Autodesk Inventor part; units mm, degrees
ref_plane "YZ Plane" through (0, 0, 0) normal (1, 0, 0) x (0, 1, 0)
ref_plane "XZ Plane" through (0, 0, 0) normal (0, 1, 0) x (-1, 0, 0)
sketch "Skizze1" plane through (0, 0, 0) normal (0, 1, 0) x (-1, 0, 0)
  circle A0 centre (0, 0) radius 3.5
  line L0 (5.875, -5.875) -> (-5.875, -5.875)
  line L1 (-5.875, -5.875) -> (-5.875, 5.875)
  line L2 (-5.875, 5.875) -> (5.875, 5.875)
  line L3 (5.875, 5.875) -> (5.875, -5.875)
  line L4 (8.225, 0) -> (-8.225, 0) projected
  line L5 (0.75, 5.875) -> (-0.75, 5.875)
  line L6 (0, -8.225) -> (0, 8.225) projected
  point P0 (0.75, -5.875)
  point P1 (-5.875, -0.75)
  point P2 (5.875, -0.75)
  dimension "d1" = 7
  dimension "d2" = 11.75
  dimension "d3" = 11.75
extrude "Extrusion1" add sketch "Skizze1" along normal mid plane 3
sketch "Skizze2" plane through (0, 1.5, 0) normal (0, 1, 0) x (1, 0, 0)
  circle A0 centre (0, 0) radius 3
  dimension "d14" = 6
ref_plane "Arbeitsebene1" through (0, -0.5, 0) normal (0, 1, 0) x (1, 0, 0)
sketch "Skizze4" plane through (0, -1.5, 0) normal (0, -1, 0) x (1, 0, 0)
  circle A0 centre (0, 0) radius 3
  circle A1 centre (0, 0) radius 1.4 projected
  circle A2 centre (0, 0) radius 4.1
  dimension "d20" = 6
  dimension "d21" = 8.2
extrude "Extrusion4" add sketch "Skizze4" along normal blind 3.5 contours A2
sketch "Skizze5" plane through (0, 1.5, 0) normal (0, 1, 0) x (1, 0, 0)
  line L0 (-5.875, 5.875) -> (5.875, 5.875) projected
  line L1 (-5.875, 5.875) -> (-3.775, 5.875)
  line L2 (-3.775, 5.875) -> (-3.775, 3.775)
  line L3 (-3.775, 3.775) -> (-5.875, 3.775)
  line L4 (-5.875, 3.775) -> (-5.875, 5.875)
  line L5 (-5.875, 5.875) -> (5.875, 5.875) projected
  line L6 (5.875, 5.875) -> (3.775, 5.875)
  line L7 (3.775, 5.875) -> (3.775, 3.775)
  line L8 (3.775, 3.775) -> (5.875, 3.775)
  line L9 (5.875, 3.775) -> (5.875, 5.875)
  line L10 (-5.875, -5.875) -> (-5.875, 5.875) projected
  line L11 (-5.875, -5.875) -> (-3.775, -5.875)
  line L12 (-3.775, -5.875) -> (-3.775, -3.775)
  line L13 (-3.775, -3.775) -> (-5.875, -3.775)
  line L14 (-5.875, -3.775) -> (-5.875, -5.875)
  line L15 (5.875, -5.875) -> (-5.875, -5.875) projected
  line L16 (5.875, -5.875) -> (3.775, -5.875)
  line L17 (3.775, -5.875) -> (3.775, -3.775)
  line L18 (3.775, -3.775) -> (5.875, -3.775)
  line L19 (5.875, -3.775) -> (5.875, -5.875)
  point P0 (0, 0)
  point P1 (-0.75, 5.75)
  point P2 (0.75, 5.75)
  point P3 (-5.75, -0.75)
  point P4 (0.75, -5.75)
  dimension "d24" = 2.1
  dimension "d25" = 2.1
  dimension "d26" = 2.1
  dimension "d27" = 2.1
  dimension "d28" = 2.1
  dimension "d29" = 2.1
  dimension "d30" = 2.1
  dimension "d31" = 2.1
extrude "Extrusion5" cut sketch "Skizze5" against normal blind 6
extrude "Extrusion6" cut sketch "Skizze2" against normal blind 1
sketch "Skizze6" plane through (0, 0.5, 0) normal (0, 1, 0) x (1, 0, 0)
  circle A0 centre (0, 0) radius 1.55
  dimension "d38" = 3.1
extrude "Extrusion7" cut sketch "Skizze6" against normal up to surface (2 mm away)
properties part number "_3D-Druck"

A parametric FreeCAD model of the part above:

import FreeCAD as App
import Part
import Sketcher
from FreeCAD import Vector


def add_polygon(sketch, points):
    """Adds a closed chain of lines whose ends are joined by coincident constraints."""
    first, n = sketch.GeometryCount, len(points)
    for a, b in zip(points, points[1:] + points[:1]):
        sketch.addGeometry(Part.LineSegment(App.Vector(*a, 0), App.Vector(*b, 0)), False)
    for i in range(n):
        sketch.addConstraint(Sketcher.Constraint("Coincident", first + i, 2, first + (i + 1) % n, 1))

doc = App.newDocument("Part")
body = doc.addObject("PartDesign::Body", "Body")

# Sketch on XZ plane
sketch1 = body.newObject("Sketcher::SketchObject", "Sketch")
sketch1.AttachmentSupport = (doc.getObject("XZ_Plane"), [""])
sketch1.MapMode = "FlatFace"
add_polygon(sketch1, [(5.875, 5.875), (5.875, -5.875), (-5.875, -5.875), (-5.875, 5.875)])  # lines 0-3
sketch1.addConstraint([
    Sketcher.Constraint("Vertical", 0),
    Sketcher.Constraint("Horizontal", 1),
    Sketcher.Constraint("Vertical", 2),
    Sketcher.Constraint("Horizontal", 3),
    Sketcher.Constraint("Symmetric", 0, 2, 2, 2, -1, 1),
    Sketcher.Constraint("Equal", 3, 0),
    Sketcher.Constraint("DistanceX", 1, 2, 1, 1, 11.75),
])
pad1 = body.newObject("PartDesign::Pad", "Pad")
pad1.Profile = sketch1
pad1.Length = 3
pad1.Midplane = True

# Sketch on XZ plane
sketch2 = body.newObject("Sketcher::SketchObject", "Sketch001")
sketch2.AttachmentSupport = (doc.getObject("XZ_Plane"), [""])
sketch2.MapMode = "FlatFace"
sketch2.AttachmentOffset = App.Placement(Vector(0, 0, 1.5), App.Rotation())
sketch2.addGeometry([
    Part.Circle(Vector(0, 0, 0), Vector(0, 0, 1), 4.1),
    Part.Circle(Vector(0, 0, 0), Vector(0, 0, 1), 3),
], False)
sketch2.addConstraint([
    Sketcher.Constraint("Coincident", 0, 3, -1, 1),
    Sketcher.Constraint("Coincident", 1, 3, -1, 1),
    Sketcher.Constraint("Diameter", 1, 6.0),
    Sketcher.Constraint("Diameter", 0, 8.2),
])
pad2 = body.newObject("PartDesign::Pad", "Pad001")
pad2.Profile = sketch2
pad2.Length = 3.5

# Sketch on XZ plane
sketch3 = body.newObject("Sketcher::SketchObject", "Sketch002")
sketch3.AttachmentSupport = (doc.getObject("XZ_Plane"), [""])
sketch3.MapMode = "FlatFace"
sketch3.AttachmentOffset = App.Placement(Vector(0, 0, -1.5), App.Rotation())
add_polygon(sketch3, [(5.875, -5.875), (3.775, -5.875), (3.775, -3.775), (5.875, -3.775)])  # lines 0-3
add_polygon(sketch3, [(3.775, 3.775), (3.775, 5.875), (5.875, 5.875), (5.875, 3.775)])  # lines 4-7
add_polygon(sketch3, [(-3.775, 3.775), (-5.875, 3.775), (-5.875, 5.875), (-3.775, 5.875)])  # lines 8-11
add_polygon(sketch3, [(-3.775, -5.875), (-5.875, -5.875), (-5.875, -3.775), (-3.775, -3.775)])  # lines 12-15
sketch3.addConstraint([
    Sketcher.Constraint("Horizontal", 0),
    Sketcher.Constraint("Vertical", 1),
    Sketcher.Constraint("Horizontal", 2),
    Sketcher.Constraint("Vertical", 3),
    Sketcher.Constraint("Vertical", 4),
    Sketcher.Constraint("Horizontal", 5),
    Sketcher.Constraint("Vertical", 6),
    Sketcher.Constraint("Horizontal", 7),
    Sketcher.Constraint("Horizontal", 8),
    Sketcher.Constraint("Vertical", 9),
    Sketcher.Constraint("Horizontal", 10),
    Sketcher.Constraint("Vertical", 11),
    Sketcher.Constraint("Horizontal", 12),
    Sketcher.Constraint("Vertical", 13),
    Sketcher.Constraint("Horizontal", 14),
    Sketcher.Constraint("Vertical", 15),
    Sketcher.Constraint("Symmetric", 2, 2, 8, 2, -1, 1),
    Sketcher.Constraint("Symmetric", 0, 2, 10, 2, -1, 1),
    Sketcher.Constraint("Symmetric", 5, 2, 12, 2, -1, 1),
    Sketcher.Constraint("Symmetric", 7, 2, 14, 2, -1, 1),
    Sketcher.Constraint("Symmetric", 6, 2, 8, 2, -2),
    Sketcher.Constraint("Symmetric", 4, 2, 10, 2, -2),
    Sketcher.Constraint("Equal", 14, 1),
    Sketcher.Constraint("DistanceX", 0, 2, 0, 1, 2.1),
    Sketcher.Constraint("DistanceY", 1, 2, 4, 2, 9.65),
    Sketcher.Constraint("DistanceX", 8, 2, 7, 2, 9.65),
])
pocket1 = body.newObject("PartDesign::Pocket", "Pocket")
pocket1.Profile = sketch3
pocket1.Length = 6
pocket1.Reversed = True

# Sketch on XZ plane
sketch4 = body.newObject("Sketcher::SketchObject", "Sketch003")
sketch4.AttachmentSupport = (doc.getObject("XZ_Plane"), [""])
sketch4.MapMode = "FlatFace"
sketch4.AttachmentOffset = App.Placement(Vector(0, 0, -1.5), App.Rotation())
sketch4.addGeometry(Part.Circle(Vector(0, 0, 0), Vector(0, 0, 1), 3), False)
sketch4.addConstraint([
    Sketcher.Constraint("Coincident", 0, 3, -1, 1),
    Sketcher.Constraint("Diameter", 0, 6.0),
])
pocket2 = body.newObject("PartDesign::Pocket", "Pocket001")
pocket2.Profile = sketch4
pocket2.Length = 1
pocket2.Reversed = True

# Sketch on XZ plane
sketch5 = body.newObject("Sketcher::SketchObject", "Sketch004")
sketch5.AttachmentSupport = (doc.getObject("XZ_Plane"), [""])
sketch5.MapMode = "FlatFace"
sketch5.AttachmentOffset = App.Placement(Vector(0, 0, -0.5), App.Rotation())
sketch5.addGeometry(Part.Circle(Vector(0, 0, 0), Vector(0, 0, 1), 1.55), False)
sketch5.addConstraint([
    Sketcher.Constraint("Coincident", 0, 3, -1, 1),
    Sketcher.Constraint("Diameter", 0, 3.1),
])
pocket3 = body.newObject("PartDesign::Pocket", "Pocket002")
pocket3.Profile = sketch5
pocket3.Length = 2
pocket3.Reversed = True

doc.recompute()
